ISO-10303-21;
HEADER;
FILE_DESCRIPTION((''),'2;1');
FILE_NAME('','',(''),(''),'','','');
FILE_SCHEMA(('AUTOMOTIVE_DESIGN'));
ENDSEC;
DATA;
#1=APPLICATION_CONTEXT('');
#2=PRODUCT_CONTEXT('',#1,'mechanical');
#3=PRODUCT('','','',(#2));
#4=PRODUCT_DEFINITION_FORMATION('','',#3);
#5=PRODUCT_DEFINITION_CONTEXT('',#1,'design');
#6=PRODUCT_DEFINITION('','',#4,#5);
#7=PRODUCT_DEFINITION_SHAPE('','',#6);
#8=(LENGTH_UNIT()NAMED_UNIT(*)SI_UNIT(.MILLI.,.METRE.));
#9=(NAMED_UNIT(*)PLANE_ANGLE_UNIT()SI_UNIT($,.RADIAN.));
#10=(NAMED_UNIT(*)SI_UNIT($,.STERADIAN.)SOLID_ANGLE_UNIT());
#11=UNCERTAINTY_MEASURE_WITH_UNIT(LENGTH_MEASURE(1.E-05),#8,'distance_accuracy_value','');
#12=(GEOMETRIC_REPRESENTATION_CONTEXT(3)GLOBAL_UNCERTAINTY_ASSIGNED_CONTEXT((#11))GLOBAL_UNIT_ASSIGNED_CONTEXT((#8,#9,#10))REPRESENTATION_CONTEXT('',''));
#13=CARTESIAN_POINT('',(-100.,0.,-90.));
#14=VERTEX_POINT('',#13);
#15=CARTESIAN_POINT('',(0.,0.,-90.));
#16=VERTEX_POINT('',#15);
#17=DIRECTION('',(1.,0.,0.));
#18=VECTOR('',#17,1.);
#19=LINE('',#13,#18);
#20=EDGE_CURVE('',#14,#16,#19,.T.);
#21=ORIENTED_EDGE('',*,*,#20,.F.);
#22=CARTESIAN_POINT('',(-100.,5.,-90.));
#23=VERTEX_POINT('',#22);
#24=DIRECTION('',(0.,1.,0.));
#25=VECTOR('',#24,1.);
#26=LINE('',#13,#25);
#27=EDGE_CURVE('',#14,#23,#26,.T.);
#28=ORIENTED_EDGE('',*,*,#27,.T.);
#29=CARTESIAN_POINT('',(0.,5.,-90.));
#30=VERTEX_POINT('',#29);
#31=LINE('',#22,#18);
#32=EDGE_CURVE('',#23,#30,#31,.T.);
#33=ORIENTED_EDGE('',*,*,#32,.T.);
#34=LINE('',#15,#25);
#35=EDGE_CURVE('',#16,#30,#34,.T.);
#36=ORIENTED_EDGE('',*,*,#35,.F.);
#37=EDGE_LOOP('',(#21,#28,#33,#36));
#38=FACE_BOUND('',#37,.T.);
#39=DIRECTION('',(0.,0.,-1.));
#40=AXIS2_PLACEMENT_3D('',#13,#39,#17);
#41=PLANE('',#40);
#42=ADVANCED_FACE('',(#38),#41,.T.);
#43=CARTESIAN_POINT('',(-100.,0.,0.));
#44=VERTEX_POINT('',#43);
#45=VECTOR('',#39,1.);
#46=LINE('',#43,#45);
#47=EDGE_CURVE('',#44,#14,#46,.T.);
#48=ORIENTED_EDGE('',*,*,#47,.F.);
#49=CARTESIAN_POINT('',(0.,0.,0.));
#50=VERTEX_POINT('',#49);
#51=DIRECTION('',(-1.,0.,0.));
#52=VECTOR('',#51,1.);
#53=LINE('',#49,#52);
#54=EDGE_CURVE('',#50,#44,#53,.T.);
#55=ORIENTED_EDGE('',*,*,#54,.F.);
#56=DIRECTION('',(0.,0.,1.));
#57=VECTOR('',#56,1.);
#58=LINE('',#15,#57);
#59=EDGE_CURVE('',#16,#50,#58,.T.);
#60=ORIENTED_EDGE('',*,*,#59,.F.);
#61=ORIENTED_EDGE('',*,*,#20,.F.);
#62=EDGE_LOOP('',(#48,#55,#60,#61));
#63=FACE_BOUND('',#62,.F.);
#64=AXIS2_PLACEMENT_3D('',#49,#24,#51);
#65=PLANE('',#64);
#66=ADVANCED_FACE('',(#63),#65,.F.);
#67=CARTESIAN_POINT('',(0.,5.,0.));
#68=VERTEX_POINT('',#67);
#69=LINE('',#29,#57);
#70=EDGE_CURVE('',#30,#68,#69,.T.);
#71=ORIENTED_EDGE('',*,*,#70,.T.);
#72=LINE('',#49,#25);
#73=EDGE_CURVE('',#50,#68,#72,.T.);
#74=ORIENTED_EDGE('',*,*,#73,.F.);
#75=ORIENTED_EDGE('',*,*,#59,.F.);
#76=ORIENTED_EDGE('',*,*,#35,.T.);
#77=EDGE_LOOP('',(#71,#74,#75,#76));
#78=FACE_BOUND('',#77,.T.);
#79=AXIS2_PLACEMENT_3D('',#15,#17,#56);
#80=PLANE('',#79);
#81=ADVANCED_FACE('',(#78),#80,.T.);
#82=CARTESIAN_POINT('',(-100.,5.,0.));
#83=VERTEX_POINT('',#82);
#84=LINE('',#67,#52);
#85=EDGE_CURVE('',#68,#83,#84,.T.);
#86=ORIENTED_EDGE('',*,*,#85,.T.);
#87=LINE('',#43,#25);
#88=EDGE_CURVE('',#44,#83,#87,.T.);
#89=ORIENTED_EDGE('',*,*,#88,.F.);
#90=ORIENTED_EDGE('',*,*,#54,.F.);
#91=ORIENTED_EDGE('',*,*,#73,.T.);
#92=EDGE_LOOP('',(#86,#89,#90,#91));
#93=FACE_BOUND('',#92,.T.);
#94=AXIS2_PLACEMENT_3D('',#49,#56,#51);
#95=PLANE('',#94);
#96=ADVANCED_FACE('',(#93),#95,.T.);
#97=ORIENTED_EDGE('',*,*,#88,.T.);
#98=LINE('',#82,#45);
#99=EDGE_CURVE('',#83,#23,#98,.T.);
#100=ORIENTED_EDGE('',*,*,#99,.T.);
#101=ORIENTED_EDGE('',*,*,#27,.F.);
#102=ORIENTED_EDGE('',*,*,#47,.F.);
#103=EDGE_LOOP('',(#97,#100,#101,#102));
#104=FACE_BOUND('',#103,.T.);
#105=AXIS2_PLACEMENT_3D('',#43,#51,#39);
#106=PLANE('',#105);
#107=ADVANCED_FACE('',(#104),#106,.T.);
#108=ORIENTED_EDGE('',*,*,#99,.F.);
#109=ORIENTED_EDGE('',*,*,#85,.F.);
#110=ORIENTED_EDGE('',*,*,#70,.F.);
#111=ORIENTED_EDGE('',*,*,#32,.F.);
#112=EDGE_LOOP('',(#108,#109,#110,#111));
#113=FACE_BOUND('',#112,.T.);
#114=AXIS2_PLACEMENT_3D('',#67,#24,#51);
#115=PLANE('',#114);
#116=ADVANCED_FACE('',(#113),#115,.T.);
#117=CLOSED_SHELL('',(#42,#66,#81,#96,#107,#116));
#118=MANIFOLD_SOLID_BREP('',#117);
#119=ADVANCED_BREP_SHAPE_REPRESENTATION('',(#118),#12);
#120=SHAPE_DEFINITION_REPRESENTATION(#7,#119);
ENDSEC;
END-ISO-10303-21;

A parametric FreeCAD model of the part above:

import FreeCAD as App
import Part
import Sketcher
from FreeCAD import Vector

doc = App.newDocument("Part")
params = doc.addObject("Spreadsheet::Sheet", "Params")
for row, (alias, value) in enumerate([
    ("sketch1_width", "100 mm"),
    ("sketch1_height", "90 mm"),
    ("pad1_length", "5 mm"),
], start=1):
    params.set(f"A{row}", alias)
    params.set(f"B{row}", "=" + value)
    params.setAlias(f"B{row}", alias)

body = doc.addObject("PartDesign::Body", "Body")

# Sketch on XZ plane
sketch1 = body.newObject("Sketcher::SketchObject", "Sketch")
sketch1.AttachmentSupport = (doc.getObject("XZ_Plane"), [""])
sketch1.MapMode = "FlatFace"
sketch1.addGeometry(Part.LineSegment(Vector(-100, 0, 0), Vector(0, 0, 0)), False)
sketch1.addGeometry(Part.LineSegment(Vector(0, 0, 0), Vector(0, -90, 0)), False)
sketch1.addGeometry(Part.LineSegment(Vector(0, -90, 0), Vector(-100, -90, 0)), False)
sketch1.addGeometry(Part.LineSegment(Vector(-100, -90, 0), Vector(-100, 0, 0)), False)
sketch1.addConstraint(Sketcher.Constraint("Coincident", 0, 2, 1, 1))
sketch1.addConstraint(Sketcher.Constraint("Coincident", 1, 2, 2, 1))
sketch1.addConstraint(Sketcher.Constraint("Coincident", 2, 2, 3, 1))
sketch1.addConstraint(Sketcher.Constraint("Coincident", 3, 2, 0, 1))
sketch1.addConstraint(Sketcher.Constraint("Horizontal", 0))
sketch1.addConstraint(Sketcher.Constraint("Vertical", 1))
sketch1.addConstraint(Sketcher.Constraint("Horizontal", 2))
sketch1.addConstraint(Sketcher.Constraint("Vertical", 3))
sketch1.addConstraint(Sketcher.Constraint("Coincident", 0, 2, -1, 1))
sketch1.addConstraint(Sketcher.Constraint("DistanceX", 0, 1, 0, 2, 100.0))
sketch1.addConstraint(Sketcher.Constraint("DistanceY", 1, 2, 1, 1, 90.0))
sketch1.setExpression("Constraints[9]", "Params.sketch1_width")
sketch1.setExpression("Constraints[10]", "Params.sketch1_height")
pad1 = body.newObject("PartDesign::Pad", "Pad")
pad1.Profile = sketch1
pad1.setExpression("Length", "Params.pad1_length")
pad1.Reversed = True

doc.recompute()
